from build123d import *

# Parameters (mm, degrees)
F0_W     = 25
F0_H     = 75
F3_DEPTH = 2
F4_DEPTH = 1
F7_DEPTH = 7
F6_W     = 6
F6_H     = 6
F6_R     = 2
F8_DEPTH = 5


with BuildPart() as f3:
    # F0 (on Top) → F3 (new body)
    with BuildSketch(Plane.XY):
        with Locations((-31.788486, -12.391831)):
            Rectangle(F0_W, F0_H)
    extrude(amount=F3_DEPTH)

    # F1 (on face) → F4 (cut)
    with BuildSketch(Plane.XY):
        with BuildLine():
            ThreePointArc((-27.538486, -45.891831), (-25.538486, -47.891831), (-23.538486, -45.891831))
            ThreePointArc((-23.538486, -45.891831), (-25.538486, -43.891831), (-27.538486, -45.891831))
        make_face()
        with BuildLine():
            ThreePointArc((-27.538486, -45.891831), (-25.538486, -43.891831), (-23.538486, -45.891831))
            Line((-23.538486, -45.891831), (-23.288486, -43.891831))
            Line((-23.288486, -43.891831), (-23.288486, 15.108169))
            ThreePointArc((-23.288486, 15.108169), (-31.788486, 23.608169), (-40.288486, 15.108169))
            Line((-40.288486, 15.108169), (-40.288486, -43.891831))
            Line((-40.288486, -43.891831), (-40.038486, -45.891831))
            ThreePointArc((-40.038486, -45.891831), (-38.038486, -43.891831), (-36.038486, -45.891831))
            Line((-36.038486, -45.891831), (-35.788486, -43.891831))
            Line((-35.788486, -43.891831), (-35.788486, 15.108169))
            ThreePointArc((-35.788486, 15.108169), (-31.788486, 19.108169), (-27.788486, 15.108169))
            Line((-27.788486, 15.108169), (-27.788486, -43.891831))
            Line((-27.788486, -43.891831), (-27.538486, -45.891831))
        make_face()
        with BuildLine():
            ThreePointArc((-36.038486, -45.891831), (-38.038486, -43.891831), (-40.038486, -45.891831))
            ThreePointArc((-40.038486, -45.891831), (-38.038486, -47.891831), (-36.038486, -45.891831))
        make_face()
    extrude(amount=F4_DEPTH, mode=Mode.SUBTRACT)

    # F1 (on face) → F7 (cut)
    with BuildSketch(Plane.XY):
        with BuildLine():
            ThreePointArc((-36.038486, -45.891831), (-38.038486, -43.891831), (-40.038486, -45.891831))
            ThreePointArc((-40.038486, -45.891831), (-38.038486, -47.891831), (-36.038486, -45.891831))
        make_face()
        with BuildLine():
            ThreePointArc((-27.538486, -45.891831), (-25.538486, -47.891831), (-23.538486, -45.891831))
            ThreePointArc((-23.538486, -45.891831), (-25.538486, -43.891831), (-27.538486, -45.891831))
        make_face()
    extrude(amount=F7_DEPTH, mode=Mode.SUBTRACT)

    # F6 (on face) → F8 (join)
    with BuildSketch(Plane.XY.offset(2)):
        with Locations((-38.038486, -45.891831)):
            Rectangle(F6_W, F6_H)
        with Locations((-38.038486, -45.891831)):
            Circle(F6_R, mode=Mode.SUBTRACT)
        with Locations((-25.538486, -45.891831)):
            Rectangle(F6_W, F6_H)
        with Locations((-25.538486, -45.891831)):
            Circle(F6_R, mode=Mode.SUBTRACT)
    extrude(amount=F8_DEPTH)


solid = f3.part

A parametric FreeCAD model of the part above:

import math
import FreeCAD as App
import Part
import Sketcher

doc = App.newDocument("Part")
params = doc.addObject("Spreadsheet::Sheet", "Params")
for row, (alias, value) in enumerate([
    ("sketch1_width", "25 mm"),
    ("sketch1_height", "75 mm"),
    ("pad1_length", "2 mm"),
    ("sketch2_radius", "2 mm"),
    ("sketch2_radius2", "4 mm"),
    ("sketch2_radius3", "8.5 mm"),
    ("sketch2_height", "59 mm"),
    ("pocket1_length", "1 mm"),
    ("sketch3_diameter", "4 mm"),
    ("pocket2_length", "7 mm"),
    ("sketch4_diameter", "4 mm"),
    ("sketch4_width", "6 mm"),
    ("pad2_length", "5 mm"),
], start=1):
    params.set(f"A{row}", alias)
    params.set(f"B{row}", "=" + value)
    params.setAlias(f"B{row}", alias)

body = doc.addObject("PartDesign::Body", "Body")

sketch1 = body.newObject("Sketcher::SketchObject", "Sketch")
sketch1.AttachmentSupport = (doc.getObject("XY_Plane"), [""])
sketch1.MapMode = "FlatFace"
sketch1.addGeometry([
    Part.LineSegment(App.Vector(-44.288486, 25.108169, 0), App.Vector(-44.288486, -49.891831, 0)),
    Part.LineSegment(App.Vector(-44.288486, -49.891831, 0), App.Vector(-19.288486, -49.891831, 0)),
    Part.LineSegment(App.Vector(-19.288486, -49.891831, 0), App.Vector(-19.288486, 25.108169, 0)),
    Part.LineSegment(App.Vector(-19.288486, 25.108169, 0), App.Vector(-44.288486, 25.108169, 0)),
], False)
sketch1.addConstraint([
    Sketcher.Constraint("Coincident", 0, 2, 1, 1),
    Sketcher.Constraint("Coincident", 1, 2, 2, 1),
    Sketcher.Constraint("Coincident", 2, 2, 3, 1),
    Sketcher.Constraint("Coincident", 3, 2, 0, 1),
    Sketcher.Constraint("Vertical", 0),
    Sketcher.Constraint("Horizontal", 1),
    Sketcher.Constraint("Vertical", 2),
    Sketcher.Constraint("Horizontal", 3),
    Sketcher.Constraint("DistanceX", 1, 1, 1, 2, 25.0),
    Sketcher.Constraint("DistanceY", 0, 2, 0, 1, 75.0),
    Sketcher.Constraint("DistanceY", 0, 2, -1, 1, 49.891831),
    Sketcher.Constraint("DistanceX", 0, 2, -1, 1, 44.288486),
])
sketch1.setExpression("Constraints[8]", "Params.sketch1_width")
sketch1.setExpression("Constraints[9]", "Params.sketch1_height")
pad1 = body.newObject("PartDesign::Pad", "Pad")
pad1.Profile = sketch1
pad1.setExpression("Length", "Params.pad1_length")

sketch2 = body.newObject("Sketcher::SketchObject", "Sketch001")
sketch2.AttachmentSupport = (doc.getObject("XY_Plane"), [""])
sketch2.MapMode = "FlatFace"
sketch2.addGeometry([
    Part.ArcOfCircle(Part.Circle(App.Vector(-25.538486, -45.891831, 0), App.Vector(0, 0, 1), 2), math.radians(180), math.radians(360)),
    Part.LineSegment(App.Vector(-23.538486, -45.891831, 0), App.Vector(-23.288486, -43.891831, 0)),
    Part.LineSegment(App.Vector(-23.288486, -43.891831, 0), App.Vector(-23.288486, 15.108169, 0)),
    Part.ArcOfCircle(Part.Circle(App.Vector(-31.788486, 15.108169, 0), App.Vector(0, 0, 1), 8.5), math.radians(0), math.radians(180)),
    Part.LineSegment(App.Vector(-40.288486, 15.108169, 0), App.Vector(-40.288486, -43.891831, 0)),
    Part.LineSegment(App.Vector(-40.288486, -43.891831, 0), App.Vector(-40.038486, -45.891831, 0)),
    Part.ArcOfCircle(Part.Circle(App.Vector(-38.038486, -45.891831, 0), App.Vector(0, 0, 1), 2), math.radians(180), math.radians(360)),
    Part.LineSegment(App.Vector(-36.038486, -45.891831, 0), App.Vector(-35.788486, -43.891831, 0)),
    Part.LineSegment(App.Vector(-35.788486, -43.891831, 0), App.Vector(-35.788486, 15.108169, 0)),
    Part.ArcOfCircle(Part.Circle(App.Vector(-31.788486, 15.108169, 0), App.Vector(0, 0, 1), 4), math.radians(0), math.radians(180)),
    Part.LineSegment(App.Vector(-27.788486, 15.108169, 0), App.Vector(-27.788486, -43.891831, 0)),
    Part.LineSegment(App.Vector(-27.788486, -43.891831, 0), App.Vector(-27.538486, -45.891831, 0)),
], False)
sketch2.addConstraint([
    Sketcher.Constraint("Coincident", 0, 2, 1, 1),
    Sketcher.Constraint("Coincident", 1, 2, 2, 1),
    Sketcher.Constraint("Tangent", 2, 2, 3, 1),
    Sketcher.Constraint("Tangent", 3, 2, 4, 1),
    Sketcher.Constraint("Coincident", 4, 2, 5, 1),
    Sketcher.Constraint("Coincident", 5, 2, 6, 1),
    Sketcher.Constraint("Coincident", 6, 2, 7, 1),
    Sketcher.Constraint("Coincident", 7, 2, 8, 1),
    Sketcher.Constraint("Tangent", 8, 2, 9, 2),
    Sketcher.Constraint("Tangent", 9, 1, 10, 1),
    Sketcher.Constraint("Coincident", 10, 2, 11, 1),
    Sketcher.Constraint("Coincident", 11, 2, 0, 1),
    Sketcher.Constraint("Vertical", 2),
    Sketcher.Constraint("Vertical", 4),
    Sketcher.Constraint("Vertical", 8),
    Sketcher.Constraint("Vertical", 10),
    Sketcher.Constraint("Coincident", 9, 3, 3, 3),
    Sketcher.Constraint("Equal", 0, 6),
    Sketcher.Constraint("Parallel", 1, 7),
    Sketcher.Constraint("Parallel", 5, 11),
    Sketcher.Constraint("Horizontal", 0, 3, 6, 3),
    Sketcher.Constraint("Horizontal", 6, 3, 0, 2),
    Sketcher.Constraint("Horizontal", 1, 2, 4, 2),
    Sketcher.Constraint("Horizontal", 0, 2, 5, 2),
    Sketcher.Constraint("Horizontal", 5, 2, 6, 2),
    Sketcher.Constraint("Horizontal", 4, 2, 7, 2),
    Sketcher.Constraint("Horizontal", 7, 2, 10, 2),
    Sketcher.Constraint("Equal", 1, 5),
    Sketcher.Constraint("Radius", 0, 2.0),
    Sketcher.Constraint("Radius", 9, 4.0),
    Sketcher.Constraint("Radius", 3, 8.5),
    Sketcher.Constraint("DistanceY", 2, 1, 2, 2, 59.0),
    Sketcher.Constraint("DistanceY", 0, 3, 3, 3, 61.0),
    Sketcher.Constraint("DistanceY", 0, 3, -1, 1, 45.891831),
    Sketcher.Constraint("DistanceX", 0, 3, -1, 1, 25.538486),
])
sketch2.setExpression("Constraints[28]", "Params.sketch2_radius")
sketch2.setExpression("Constraints[29]", "Params.sketch2_radius2")
sketch2.setExpression("Constraints[30]", "Params.sketch2_radius3")
sketch2.setExpression("Constraints[31]", "Params.sketch2_height")
pocket1 = body.newObject("PartDesign::Pocket", "Pocket")
pocket1.Profile = sketch2
pocket1.setExpression("Length", "Params.pocket1_length")
pocket1.Reversed = True

sketch3 = body.newObject("Sketcher::SketchObject", "Sketch002")
sketch3.AttachmentSupport = (doc.getObject("XY_Plane"), [""])
sketch3.MapMode = "FlatFace"
sketch3.addGeometry([
    Part.Circle(App.Vector(-38.038486, -45.891831, 0), App.Vector(0, 0, 1), 2),
    Part.Circle(App.Vector(-25.538486, -45.891831, 0), App.Vector(0, 0, 1), 2),
], False)
sketch3.addConstraint([
    Sketcher.Constraint("Equal", 0, 1),
    Sketcher.Constraint("Horizontal", 0, 3, 1, 3),
    Sketcher.Constraint("Diameter", 0, 4.0),
    Sketcher.Constraint("DistanceX", 0, 3, 1, 3, 12.5),
    Sketcher.Constraint("DistanceY", 0, 3, -1, 1, 45.891831),
    Sketcher.Constraint("DistanceX", 0, 3, -1, 1, 38.038486),
])
sketch3.setExpression("Constraints[2]", "Params.sketch3_diameter")
pocket2 = body.newObject("PartDesign::Pocket", "Pocket001")
pocket2.Profile = sketch3
pocket2.setExpression("Length", "Params.pocket2_length")
pocket2.Reversed = True

sketch4 = body.newObject("Sketcher::SketchObject", "Sketch003")
sketch4.AttachmentSupport = (doc.getObject("XY_Plane"), [""])
sketch4.MapMode = "FlatFace"
sketch4.AttachmentOffset = App.Placement(App.Vector(0, 0, 2), App.Rotation())
sketch4.addGeometry([
    Part.LineSegment(App.Vector(-41.038486, -42.891831, 0), App.Vector(-41.038486, -48.891831, 0)),
    Part.LineSegment(App.Vector(-41.038486, -48.891831, 0), App.Vector(-35.038486, -48.891831, 0)),
    Part.LineSegment(App.Vector(-35.038486, -48.891831, 0), App.Vector(-35.038486, -42.891831, 0)),
    Part.LineSegment(App.Vector(-35.038486, -42.891831, 0), App.Vector(-41.038486, -42.891831, 0)),
    Part.Circle(App.Vector(-38.038486, -45.891831, 0), App.Vector(0, 0, 1), 2),
    Part.LineSegment(App.Vector(-28.538486, -42.891831, 0), App.Vector(-28.538486, -48.891831, 0)),
    Part.LineSegment(App.Vector(-28.538486, -48.891831, 0), App.Vector(-22.538486, -48.891831, 0)),
    Part.LineSegment(App.Vector(-22.538486, -48.891831, 0), App.Vector(-22.538486, -42.891831, 0)),
    Part.LineSegment(App.Vector(-22.538486, -42.891831, 0), App.Vector(-28.538486, -42.891831, 0)),
    Part.Circle(App.Vector(-25.538486, -45.891831, 0), App.Vector(0, 0, 1), 2),
], False)
sketch4.addConstraint([
    Sketcher.Constraint("Coincident", 0, 2, 1, 1),
    Sketcher.Constraint("Coincident", 1, 2, 2, 1),
    Sketcher.Constraint("Coincident", 2, 2, 3, 1),
    Sketcher.Constraint("Coincident", 3, 2, 0, 1),
    Sketcher.Constraint("Coincident", 5, 2, 6, 1),
    Sketcher.Constraint("Coincident", 6, 2, 7, 1),
    Sketcher.Constraint("Coincident", 7, 2, 8, 1),
    Sketcher.Constraint("Coincident", 8, 2, 5, 1),
    Sketcher.Constraint("Vertical", 0),
    Sketcher.Constraint("Horizontal", 1),
    Sketcher.Constraint("Vertical", 2),
    Sketcher.Constraint("Horizontal", 3),
    Sketcher.Constraint("Vertical", 5),
    Sketcher.Constraint("Horizontal", 6),
    Sketcher.Constraint("Vertical", 7),
    Sketcher.Constraint("Horizontal", 8),
    Sketcher.Constraint("Equal", 4, 9),
    Sketcher.Constraint("Horizontal", 4, 3, 9, 3),
    Sketcher.Constraint("Horizontal", 1, 2, 5, 2),
    Sketcher.Constraint("Horizontal", 3, 2, 7, 2),
    Sketcher.Constraint("Equal", 3, 6),
    Sketcher.Constraint("Equal", 8, 0),
    Sketcher.Constraint("Diameter", 4, 4.0),
    Sketcher.Constraint("DistanceX", 1, 1, 1, 2, 6.0),
    Sketcher.Constraint("DistanceX", 0, 2, 4, 3, 3.0),
    Sketcher.Constraint("DistanceY", 0, 2, 4, 3, 3.0),
    Sketcher.Constraint("DistanceX", 5, 2, 9, 3, 3.0),
    Sketcher.Constraint("DistanceX", 4, 3, 9, 3, 12.5),
    Sketcher.Constraint("DistanceY", 4, 3, -1, 1, 45.891831),
    Sketcher.Constraint("DistanceX", 4, 3, -1, 1, 38.038486),
])
sketch4.setExpression("Constraints[22]", "Params.sketch4_diameter")
sketch4.setExpression("Constraints[23]", "Params.sketch4_width")
pad2 = body.newObject("PartDesign::Pad", "Pad001")
pad2.Profile = sketch4
pad2.setExpression("Length", "Params.pad2_length")

doc.recompute()
